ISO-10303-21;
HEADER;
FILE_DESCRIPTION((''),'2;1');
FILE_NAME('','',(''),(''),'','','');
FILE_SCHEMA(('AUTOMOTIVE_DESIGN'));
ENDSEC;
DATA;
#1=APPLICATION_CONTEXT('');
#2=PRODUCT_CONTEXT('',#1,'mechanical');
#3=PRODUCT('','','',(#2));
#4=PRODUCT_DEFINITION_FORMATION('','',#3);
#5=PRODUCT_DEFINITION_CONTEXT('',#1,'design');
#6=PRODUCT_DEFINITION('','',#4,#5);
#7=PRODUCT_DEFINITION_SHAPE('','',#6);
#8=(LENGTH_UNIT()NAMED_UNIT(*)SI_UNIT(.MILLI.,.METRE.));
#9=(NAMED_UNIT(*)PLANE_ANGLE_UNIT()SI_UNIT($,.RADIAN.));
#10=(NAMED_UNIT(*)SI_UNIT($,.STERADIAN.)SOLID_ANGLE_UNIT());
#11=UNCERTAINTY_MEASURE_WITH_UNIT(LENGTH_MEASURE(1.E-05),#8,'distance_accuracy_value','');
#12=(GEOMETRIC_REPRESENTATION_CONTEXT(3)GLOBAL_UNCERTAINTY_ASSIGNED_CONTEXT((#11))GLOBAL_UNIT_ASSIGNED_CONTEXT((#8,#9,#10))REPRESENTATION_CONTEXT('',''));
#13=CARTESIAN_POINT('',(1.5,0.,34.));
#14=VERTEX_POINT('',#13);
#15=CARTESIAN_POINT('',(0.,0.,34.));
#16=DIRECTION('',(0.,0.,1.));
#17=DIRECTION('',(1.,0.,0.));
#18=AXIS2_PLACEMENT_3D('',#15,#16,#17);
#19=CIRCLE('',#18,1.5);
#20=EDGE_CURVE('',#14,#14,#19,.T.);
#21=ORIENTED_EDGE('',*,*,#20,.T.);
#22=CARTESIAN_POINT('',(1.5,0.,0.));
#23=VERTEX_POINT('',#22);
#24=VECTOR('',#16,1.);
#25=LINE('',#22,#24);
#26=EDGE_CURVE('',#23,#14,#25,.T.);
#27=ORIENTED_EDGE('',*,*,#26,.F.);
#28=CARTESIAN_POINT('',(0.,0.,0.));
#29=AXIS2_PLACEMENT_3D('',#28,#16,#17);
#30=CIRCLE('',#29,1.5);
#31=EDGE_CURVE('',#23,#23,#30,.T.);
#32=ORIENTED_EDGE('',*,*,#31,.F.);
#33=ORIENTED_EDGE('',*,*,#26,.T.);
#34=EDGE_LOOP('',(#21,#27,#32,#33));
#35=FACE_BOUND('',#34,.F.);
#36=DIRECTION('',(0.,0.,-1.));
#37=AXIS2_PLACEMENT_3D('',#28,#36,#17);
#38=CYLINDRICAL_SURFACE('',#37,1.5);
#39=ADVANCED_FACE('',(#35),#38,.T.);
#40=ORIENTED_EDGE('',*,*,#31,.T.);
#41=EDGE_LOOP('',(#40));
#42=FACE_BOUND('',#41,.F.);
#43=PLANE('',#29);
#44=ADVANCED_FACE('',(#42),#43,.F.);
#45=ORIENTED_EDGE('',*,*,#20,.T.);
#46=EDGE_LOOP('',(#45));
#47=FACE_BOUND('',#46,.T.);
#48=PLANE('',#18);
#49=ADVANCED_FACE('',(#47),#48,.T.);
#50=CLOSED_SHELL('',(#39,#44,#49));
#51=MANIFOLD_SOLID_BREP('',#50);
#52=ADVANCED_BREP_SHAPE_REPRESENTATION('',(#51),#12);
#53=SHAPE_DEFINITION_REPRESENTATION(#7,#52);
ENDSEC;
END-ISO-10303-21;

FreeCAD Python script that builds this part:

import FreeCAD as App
import Part
import Sketcher

V = App.Vector
Q = App.Units.Quantity

doc = App.newDocument("Part")
body = doc.addObject("PartDesign::Body", "Body")

sketch1 = body.newObject("Sketcher::SketchObject", "Sketch")
sketch1.AttachmentSupport = (doc.getObject("XY_Plane"), [""])
sketch1.MapMode = "FlatFace"
sketch1.addGeometry(Part.Circle(V(0, 0, 0), V(0, 0, 1), 1.5), False)
sketch1.addConstraint([
    Sketcher.Constraint("Coincident", 0, 3, -1, 1),
    Sketcher.Constraint("Diameter", 0, Q("3 mm")),
])
pad1 = body.newObject("PartDesign::Pad", "Pad")
pad1.Profile = sketch1
pad1.Length = 34

doc.recompute()
